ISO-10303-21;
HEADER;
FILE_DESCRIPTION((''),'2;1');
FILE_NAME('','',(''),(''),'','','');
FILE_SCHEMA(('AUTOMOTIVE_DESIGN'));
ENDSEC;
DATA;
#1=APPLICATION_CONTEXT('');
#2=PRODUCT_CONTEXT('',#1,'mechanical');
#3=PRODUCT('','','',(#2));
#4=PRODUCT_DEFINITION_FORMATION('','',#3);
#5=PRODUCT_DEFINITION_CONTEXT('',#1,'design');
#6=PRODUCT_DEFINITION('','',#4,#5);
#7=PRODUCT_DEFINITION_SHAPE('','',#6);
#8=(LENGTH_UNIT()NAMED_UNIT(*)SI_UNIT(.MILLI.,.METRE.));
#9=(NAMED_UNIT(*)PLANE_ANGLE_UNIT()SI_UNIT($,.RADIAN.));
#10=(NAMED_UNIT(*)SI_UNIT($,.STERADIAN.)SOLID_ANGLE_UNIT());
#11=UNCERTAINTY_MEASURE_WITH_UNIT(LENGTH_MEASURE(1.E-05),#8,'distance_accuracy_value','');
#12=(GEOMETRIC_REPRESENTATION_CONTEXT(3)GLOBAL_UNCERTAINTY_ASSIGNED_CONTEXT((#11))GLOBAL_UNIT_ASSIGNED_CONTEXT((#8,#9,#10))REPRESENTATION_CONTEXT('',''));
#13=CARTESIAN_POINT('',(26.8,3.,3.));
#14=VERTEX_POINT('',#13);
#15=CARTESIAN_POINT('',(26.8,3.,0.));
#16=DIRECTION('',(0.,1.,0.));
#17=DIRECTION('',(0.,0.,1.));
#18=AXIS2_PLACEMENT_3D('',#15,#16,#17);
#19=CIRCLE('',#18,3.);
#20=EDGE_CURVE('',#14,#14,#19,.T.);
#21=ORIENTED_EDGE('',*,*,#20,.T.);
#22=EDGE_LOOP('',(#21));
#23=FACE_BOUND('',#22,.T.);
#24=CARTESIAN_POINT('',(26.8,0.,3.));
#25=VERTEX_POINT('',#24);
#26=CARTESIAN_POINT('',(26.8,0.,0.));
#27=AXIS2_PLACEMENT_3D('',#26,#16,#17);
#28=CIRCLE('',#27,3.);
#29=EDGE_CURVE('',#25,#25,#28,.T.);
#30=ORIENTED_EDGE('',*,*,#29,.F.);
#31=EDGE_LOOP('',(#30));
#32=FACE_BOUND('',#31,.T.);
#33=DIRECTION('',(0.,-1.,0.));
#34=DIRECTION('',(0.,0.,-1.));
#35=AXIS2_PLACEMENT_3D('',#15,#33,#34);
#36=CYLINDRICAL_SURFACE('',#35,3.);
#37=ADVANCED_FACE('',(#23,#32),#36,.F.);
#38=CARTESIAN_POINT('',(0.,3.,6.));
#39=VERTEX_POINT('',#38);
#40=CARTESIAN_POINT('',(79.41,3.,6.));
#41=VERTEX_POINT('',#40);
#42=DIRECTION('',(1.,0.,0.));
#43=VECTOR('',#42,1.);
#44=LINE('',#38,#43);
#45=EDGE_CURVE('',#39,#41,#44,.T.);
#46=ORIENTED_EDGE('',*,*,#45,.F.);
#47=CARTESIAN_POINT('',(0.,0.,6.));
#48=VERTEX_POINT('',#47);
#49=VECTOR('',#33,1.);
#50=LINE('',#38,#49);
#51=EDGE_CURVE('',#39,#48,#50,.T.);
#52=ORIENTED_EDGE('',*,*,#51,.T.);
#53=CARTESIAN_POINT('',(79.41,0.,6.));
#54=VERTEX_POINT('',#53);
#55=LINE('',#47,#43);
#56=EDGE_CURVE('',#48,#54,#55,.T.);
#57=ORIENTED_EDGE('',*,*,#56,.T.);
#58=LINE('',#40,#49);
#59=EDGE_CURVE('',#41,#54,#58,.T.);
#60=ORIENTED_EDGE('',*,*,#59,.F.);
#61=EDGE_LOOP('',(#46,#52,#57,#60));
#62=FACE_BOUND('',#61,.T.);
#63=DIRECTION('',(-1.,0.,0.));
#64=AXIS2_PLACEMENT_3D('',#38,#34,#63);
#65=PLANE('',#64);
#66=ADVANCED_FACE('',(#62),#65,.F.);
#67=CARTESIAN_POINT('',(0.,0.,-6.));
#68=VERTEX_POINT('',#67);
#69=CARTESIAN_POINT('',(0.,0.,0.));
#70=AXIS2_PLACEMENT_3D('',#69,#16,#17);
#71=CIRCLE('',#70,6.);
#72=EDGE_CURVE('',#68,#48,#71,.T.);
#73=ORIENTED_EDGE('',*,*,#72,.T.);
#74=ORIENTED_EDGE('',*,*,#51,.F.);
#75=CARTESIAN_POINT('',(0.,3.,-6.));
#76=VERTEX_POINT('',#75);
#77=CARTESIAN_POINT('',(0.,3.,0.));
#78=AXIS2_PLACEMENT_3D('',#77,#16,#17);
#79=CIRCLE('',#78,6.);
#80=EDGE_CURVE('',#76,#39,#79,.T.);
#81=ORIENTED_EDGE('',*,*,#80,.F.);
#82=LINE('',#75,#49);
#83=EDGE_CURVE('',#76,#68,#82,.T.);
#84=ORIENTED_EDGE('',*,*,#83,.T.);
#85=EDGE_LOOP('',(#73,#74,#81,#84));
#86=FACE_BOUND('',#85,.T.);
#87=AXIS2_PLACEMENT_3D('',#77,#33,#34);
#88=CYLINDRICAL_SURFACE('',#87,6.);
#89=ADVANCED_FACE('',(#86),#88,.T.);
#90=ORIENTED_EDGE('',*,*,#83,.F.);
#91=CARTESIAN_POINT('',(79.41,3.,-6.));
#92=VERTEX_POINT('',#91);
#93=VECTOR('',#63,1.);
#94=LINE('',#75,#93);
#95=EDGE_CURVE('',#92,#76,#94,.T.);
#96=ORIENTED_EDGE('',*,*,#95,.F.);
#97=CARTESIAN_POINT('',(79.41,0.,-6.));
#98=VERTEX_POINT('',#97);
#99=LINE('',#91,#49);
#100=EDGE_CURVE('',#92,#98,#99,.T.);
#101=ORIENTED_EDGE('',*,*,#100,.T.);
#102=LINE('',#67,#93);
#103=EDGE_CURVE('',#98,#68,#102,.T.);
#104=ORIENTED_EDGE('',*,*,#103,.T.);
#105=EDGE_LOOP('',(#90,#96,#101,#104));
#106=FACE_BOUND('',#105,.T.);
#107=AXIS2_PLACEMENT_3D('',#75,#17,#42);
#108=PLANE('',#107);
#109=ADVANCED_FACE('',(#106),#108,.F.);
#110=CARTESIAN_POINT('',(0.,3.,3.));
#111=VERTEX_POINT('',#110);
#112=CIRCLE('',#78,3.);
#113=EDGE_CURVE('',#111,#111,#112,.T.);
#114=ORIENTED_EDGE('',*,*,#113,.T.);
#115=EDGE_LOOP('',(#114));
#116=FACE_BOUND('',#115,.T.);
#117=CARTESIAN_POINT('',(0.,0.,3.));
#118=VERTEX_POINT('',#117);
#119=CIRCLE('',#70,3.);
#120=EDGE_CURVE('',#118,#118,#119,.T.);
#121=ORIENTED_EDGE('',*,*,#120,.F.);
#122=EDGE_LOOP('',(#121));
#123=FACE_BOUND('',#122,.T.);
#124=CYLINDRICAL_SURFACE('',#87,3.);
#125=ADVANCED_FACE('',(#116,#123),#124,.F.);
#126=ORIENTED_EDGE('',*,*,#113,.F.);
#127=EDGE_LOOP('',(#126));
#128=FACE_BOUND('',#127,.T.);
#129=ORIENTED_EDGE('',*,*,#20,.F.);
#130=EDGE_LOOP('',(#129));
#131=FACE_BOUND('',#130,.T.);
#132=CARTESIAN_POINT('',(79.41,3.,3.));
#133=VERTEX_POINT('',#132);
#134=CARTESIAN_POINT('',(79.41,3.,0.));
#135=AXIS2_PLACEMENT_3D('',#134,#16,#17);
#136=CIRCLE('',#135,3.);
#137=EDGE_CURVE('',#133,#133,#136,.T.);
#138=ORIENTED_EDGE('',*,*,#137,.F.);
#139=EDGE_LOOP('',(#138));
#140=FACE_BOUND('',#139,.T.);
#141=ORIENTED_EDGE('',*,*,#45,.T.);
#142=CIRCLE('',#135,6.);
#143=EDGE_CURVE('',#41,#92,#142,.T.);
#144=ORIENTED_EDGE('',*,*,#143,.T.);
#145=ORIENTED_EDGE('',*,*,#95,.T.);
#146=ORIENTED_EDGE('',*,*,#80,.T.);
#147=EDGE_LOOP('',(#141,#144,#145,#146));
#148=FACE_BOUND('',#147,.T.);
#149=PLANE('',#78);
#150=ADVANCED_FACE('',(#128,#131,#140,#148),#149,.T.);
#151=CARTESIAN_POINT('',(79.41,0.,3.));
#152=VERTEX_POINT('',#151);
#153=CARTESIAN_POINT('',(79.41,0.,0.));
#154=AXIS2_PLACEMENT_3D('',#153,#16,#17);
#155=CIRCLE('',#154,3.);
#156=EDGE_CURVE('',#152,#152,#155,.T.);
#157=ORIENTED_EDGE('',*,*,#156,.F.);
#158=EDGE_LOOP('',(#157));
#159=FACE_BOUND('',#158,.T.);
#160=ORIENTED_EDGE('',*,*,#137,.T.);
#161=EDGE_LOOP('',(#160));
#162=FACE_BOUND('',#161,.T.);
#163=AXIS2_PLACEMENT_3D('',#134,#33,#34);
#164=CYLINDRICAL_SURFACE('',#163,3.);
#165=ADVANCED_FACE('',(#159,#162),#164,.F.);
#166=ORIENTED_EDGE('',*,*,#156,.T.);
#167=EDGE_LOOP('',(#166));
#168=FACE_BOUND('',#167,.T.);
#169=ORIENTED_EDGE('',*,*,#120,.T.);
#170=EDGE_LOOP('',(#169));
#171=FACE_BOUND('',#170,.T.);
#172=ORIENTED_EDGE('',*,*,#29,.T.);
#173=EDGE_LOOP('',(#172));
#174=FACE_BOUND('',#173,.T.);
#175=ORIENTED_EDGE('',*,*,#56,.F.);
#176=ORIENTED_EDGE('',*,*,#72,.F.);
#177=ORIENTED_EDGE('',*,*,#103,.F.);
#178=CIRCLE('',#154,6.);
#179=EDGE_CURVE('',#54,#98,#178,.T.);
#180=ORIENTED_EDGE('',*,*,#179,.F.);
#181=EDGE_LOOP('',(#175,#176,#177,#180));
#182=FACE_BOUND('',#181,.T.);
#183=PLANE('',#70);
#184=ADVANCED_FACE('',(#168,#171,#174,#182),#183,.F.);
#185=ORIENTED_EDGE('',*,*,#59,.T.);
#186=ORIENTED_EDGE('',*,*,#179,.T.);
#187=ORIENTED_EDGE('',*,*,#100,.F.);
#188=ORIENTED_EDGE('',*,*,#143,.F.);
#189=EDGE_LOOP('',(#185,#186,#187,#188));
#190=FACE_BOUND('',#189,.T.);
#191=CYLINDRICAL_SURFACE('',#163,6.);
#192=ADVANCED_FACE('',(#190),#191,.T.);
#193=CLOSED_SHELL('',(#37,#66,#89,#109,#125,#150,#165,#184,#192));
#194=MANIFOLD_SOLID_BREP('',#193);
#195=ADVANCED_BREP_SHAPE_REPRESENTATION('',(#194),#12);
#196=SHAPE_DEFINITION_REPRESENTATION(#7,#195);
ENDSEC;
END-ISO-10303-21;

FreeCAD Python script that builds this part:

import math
import FreeCAD as App
import Part
import Sketcher

V = App.Vector

doc = App.newDocument("Part")
body = doc.addObject("PartDesign::Body", "Body")

sketch1 = doc.addObject("Sketcher::SketchObject", "Sketch")
body.addObject(sketch1)
sketch1.AttachmentSupport = (doc.XZ_Plane, [""])
sketch1.MapMode = "FlatFace"
sketch1.addGeometry([
    Part.LineSegment(V(79.4, -6, 0), V(0, -6, 0)),
    Part.ArcOfCircle(Part.Circle(V(0, 0, 0), V(0, 0, 1), 6), math.radians(90), math.radians(270)),
    Part.LineSegment(V(0, 6, 0), V(79.4, 6, 0)),
    Part.ArcOfCircle(Part.Circle(V(79.4, 0, 0), V(0, 0, 1), 6), math.radians(-90), math.radians(90)),
    Part.Circle(V(79.4, 0, 0), V(0, 0, 1), 3),
    Part.Circle(V(26.8, 0, 0), V(0, 0, 1), 3),
    Part.Circle(V(0, 0, 0), V(0, 0, 1), 3),
], False)
sketch1.addConstraint([
    Sketcher.Constraint("Tangent", 0, 2, 1, 2),
    Sketcher.Constraint("Tangent", 1, 1, 2, 1),
    Sketcher.Constraint("Tangent", 2, 2, 3, 2),
    Sketcher.Constraint("Tangent", 3, 1, 0, 1),
    Sketcher.Constraint("Horizontal", 0),
    Sketcher.Constraint("Horizontal", 2),
    Sketcher.Constraint("Coincident", 1, 3, -1, 1),
    Sketcher.Constraint("Coincident", 6, 3, -1, 1),
    Sketcher.Constraint("Coincident", 4, 3, 3, 3),
    Sketcher.Constraint("Equal", 4, 5),
    Sketcher.Constraint("Equal", 5, 6),
    Sketcher.Constraint("PointOnObject", 5, 3, -1),
    Sketcher.Constraint("Diameter", 4, 6.0),
    Sketcher.Constraint("Radius", 1, 6.0),
    Sketcher.Constraint("DistanceX", 0, 2, 0, 1, 79.41),
    Sketcher.Constraint("DistanceX", -1, 1, 5, 3, 26.8),
])
pad1 = doc.addObject("PartDesign::Pad", "Pad")
body.addObject(pad1)
pad1.Profile = sketch1
pad1.Length = 3
pad1.Reversed = True

doc.recompute()
